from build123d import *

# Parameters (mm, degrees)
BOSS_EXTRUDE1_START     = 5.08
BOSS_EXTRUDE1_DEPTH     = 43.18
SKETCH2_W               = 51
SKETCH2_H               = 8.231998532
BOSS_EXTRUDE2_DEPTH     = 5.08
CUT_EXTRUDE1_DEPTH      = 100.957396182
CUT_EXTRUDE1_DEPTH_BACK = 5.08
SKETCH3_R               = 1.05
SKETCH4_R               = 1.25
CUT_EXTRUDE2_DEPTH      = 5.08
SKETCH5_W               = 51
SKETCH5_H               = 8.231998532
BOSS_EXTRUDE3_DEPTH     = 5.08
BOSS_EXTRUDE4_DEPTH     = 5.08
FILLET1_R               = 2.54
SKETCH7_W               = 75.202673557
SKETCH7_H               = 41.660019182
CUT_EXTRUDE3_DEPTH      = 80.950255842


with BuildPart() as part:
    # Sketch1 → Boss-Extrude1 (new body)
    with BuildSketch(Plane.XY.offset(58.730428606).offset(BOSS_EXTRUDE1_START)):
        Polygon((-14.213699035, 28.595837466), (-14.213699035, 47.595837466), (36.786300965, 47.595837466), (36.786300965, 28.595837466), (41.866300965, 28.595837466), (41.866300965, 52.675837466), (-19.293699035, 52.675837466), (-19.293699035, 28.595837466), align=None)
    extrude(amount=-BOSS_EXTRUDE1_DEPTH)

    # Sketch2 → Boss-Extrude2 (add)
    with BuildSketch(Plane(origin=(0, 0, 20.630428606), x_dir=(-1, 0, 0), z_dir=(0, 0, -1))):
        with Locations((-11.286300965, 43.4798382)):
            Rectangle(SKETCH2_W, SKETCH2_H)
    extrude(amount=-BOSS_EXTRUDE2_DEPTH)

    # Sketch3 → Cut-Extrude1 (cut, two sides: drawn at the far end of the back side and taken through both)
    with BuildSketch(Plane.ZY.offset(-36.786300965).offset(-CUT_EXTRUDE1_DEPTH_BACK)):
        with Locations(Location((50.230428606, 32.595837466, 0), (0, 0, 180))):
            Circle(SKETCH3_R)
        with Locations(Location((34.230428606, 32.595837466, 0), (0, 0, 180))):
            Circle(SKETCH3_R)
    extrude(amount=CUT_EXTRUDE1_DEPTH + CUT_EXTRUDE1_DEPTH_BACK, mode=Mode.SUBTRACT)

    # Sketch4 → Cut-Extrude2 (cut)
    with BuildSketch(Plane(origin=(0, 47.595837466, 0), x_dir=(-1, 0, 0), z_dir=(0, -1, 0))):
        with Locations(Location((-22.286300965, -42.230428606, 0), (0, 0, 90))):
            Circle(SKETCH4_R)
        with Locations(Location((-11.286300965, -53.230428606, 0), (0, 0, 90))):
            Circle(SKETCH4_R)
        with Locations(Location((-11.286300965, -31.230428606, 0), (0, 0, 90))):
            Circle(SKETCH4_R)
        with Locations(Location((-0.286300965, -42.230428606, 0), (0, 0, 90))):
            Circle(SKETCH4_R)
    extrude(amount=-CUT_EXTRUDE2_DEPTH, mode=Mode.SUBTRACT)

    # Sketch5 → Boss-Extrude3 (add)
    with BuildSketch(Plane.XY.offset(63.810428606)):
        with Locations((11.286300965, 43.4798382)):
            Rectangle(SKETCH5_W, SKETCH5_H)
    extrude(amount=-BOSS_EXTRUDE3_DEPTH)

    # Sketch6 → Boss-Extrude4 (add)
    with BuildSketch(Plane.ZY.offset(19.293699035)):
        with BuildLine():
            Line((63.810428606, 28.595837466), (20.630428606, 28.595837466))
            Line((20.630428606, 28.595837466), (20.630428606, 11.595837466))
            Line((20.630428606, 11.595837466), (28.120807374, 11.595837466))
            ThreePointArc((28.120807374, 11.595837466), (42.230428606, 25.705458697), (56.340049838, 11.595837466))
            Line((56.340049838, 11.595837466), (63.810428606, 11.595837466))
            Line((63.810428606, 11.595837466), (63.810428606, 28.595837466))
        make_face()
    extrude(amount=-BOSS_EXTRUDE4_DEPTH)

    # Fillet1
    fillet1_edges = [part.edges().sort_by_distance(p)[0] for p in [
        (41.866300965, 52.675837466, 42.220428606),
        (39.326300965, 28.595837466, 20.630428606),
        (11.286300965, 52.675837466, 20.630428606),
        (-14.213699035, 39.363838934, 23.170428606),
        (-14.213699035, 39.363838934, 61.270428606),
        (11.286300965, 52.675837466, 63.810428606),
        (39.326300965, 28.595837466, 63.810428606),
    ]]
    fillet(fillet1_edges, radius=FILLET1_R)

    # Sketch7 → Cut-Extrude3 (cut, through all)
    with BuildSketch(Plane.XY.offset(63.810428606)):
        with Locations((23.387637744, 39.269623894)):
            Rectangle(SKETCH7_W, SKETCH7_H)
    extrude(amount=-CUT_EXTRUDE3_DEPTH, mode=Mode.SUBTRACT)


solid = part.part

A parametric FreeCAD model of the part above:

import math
import FreeCAD as App
import Part
import Sketcher
Q = App.Units.Quantity


def edges_at(feature, points):
    """Names of the edges that pass closest to the given points."""
    edges = feature.Shape.Edges
    near = lambda p: min(range(len(edges)), key=lambda i: edges[i].distToShape(Part.Vertex(*p))[0])
    return sorted({f"Edge{near(p) + 1}" for p in points})

doc = App.newDocument("Part")
body = doc.addObject("PartDesign::Body", "Body")

sketch1 = body.newObject("Sketcher::SketchObject", "Sketch")
sketch1.AttachmentSupport = (doc.getObject("XY_Plane"), [""])
sketch1.MapMode = "FlatFace"
sketch1.AttachmentOffset = App.Placement(App.Vector(0, 0, 63.810429), App.Rotation())
sketch1.addGeometry([
    Part.LineSegment(App.Vector(-14, 29, 0), App.Vector(-14, 48, 0)),
    Part.LineSegment(App.Vector(-14, 48, 0), App.Vector(37, 48, 0)),
    Part.LineSegment(App.Vector(37, 48, 0), App.Vector(37, 29, 0)),
    Part.LineSegment(App.Vector(37, 29, 0), App.Vector(42, 29, 0)),
    Part.LineSegment(App.Vector(42, 29, 0), App.Vector(42, 53, 0)),
    Part.LineSegment(App.Vector(42, 53, 0), App.Vector(-19, 53, 0)),
    Part.LineSegment(App.Vector(-19, 53, 0), App.Vector(-19, 29, 0)),
    Part.LineSegment(App.Vector(-19, 29, 0), App.Vector(-14, 29, 0)),
], False)
sketch1.addConstraint([
    Sketcher.Constraint("Coincident", 0, 2, 1, 1),
    Sketcher.Constraint("Coincident", 1, 2, 2, 1),
    Sketcher.Constraint("Coincident", 2, 2, 3, 1),
    Sketcher.Constraint("Coincident", 3, 2, 4, 1),
    Sketcher.Constraint("Coincident", 4, 2, 5, 1),
    Sketcher.Constraint("Coincident", 5, 2, 6, 1),
    Sketcher.Constraint("Coincident", 6, 2, 7, 1),
    Sketcher.Constraint("Coincident", 7, 2, 0, 1),
    Sketcher.Constraint("Vertical", 0),
    Sketcher.Constraint("Horizontal", 1),
    Sketcher.Constraint("Vertical", 2),
    Sketcher.Constraint("Horizontal", 3),
    Sketcher.Constraint("Vertical", 4),
    Sketcher.Constraint("Horizontal", 5),
    Sketcher.Constraint("Vertical", 6),
    Sketcher.Constraint("Horizontal", 7),
    Sketcher.Constraint("Horizontal", 3, 2, 6, 2),
    Sketcher.Constraint("Equal", 3, 7),
    Sketcher.Constraint("DistanceX", 1, 1, 1, 2, Q("51 mm")),
    Sketcher.Constraint("DistanceY", 0, 1, 0, 2, Q("19 mm")),
    Sketcher.Constraint("DistanceX", 3, 1, 3, 2, Q("5.08 mm")),
    Sketcher.Constraint("DistanceY", 4, 1, 4, 2, Q("24.08 mm")),
    Sketcher.Constraint("DistanceX", 0, 2, -1, 1, Q("14.213699 mm")),
    Sketcher.Constraint("DistanceY", -1, 1, 0, 2, Q("47.595837 mm")),
])
pad1 = body.newObject("PartDesign::Pad", "Pad")
pad1.Profile = sketch1
pad1.Length = 43.18
pad1.Reversed = True

sketch2 = body.newObject("Sketcher::SketchObject", "Sketch001")
sketch2.AttachmentSupport = (doc.getObject("XY_Plane"), [""])
sketch2.MapMode = "FlatFace"
sketch2.AttachmentOffset = App.Placement(App.Vector(0, 0, 20.630429), App.Rotation())
sketch2.addGeometry([
    Part.LineSegment(App.Vector(37, 48, 0), App.Vector(37, 39, 0)),
    Part.LineSegment(App.Vector(37, 39, 0), App.Vector(-14, 39, 0)),
    Part.LineSegment(App.Vector(-14, 39, 0), App.Vector(-14, 48, 0)),
    Part.LineSegment(App.Vector(-14, 48, 0), App.Vector(37, 48, 0)),
], False)
sketch2.addConstraint([
    Sketcher.Constraint("Coincident", 0, 2, 1, 1),
    Sketcher.Constraint("Coincident", 1, 2, 2, 1),
    Sketcher.Constraint("Coincident", 2, 2, 3, 1),
    Sketcher.Constraint("Coincident", 3, 2, 0, 1),
    Sketcher.Constraint("Vertical", 0),
    Sketcher.Constraint("Horizontal", 1),
    Sketcher.Constraint("Vertical", 2),
    Sketcher.Constraint("Horizontal", 3),
    Sketcher.Constraint("DistanceX", 1, 2, 1, 1, Q("51 mm")),
    Sketcher.Constraint("DistanceY", 0, 2, 0, 1, Q("8.231999 mm")),
    Sketcher.Constraint("DistanceX", -1, 1, 0, 2, Q("36.786301 mm")),
    Sketcher.Constraint("DistanceY", -1, 1, 0, 2, Q("39.363839 mm")),
])
pad2 = body.newObject("PartDesign::Pad", "Pad001")
pad2.Profile = sketch2
pad2.Length = 5.08

sketch3 = body.newObject("Sketcher::SketchObject", "Sketch002")
sketch3.AttachmentSupport = (doc.getObject("YZ_Plane"), [""])
sketch3.MapMode = "FlatFace"
sketch3.AttachmentOffset = App.Placement(App.Vector(0, 0, 36.786301), App.Rotation())
sketch3.addGeometry([
    Part.Circle(App.Vector(32.6, 50.2, 0), App.Vector(0, 0, 1), 1.1),
    Part.Circle(App.Vector(32.6, 34.2, 0), App.Vector(0, 0, 1), 1.1),
], False)
sketch3.addConstraint([
    Sketcher.Constraint("Equal", 0, 1),
    Sketcher.Constraint("Vertical", 0, 3, 1, 3),
    Sketcher.Constraint("Diameter", 0, Q("2.1 mm")),
    Sketcher.Constraint("DistanceY", 1, 3, 0, 3, Q("16 mm")),
    Sketcher.Constraint("DistanceY", -1, 1, 0, 3, Q("50.230429 mm")),
    Sketcher.Constraint("DistanceX", -1, 1, 0, 3, Q("32.595837 mm")),
])
pocket1 = body.newObject("PartDesign::Pocket", "Pocket")
pocket1.Profile = sketch3
pocket1.Type = "ThroughAll"
pocket1.Midplane = True

sketch4 = body.newObject("Sketcher::SketchObject", "Sketch003")
sketch4.AttachmentSupport = (doc.getObject("XZ_Plane"), [""])
sketch4.MapMode = "FlatFace"
sketch4.AttachmentOffset = App.Placement(App.Vector(0, 0, -47.595837), App.Rotation())
sketch4.addGeometry([
    Part.Circle(App.Vector(22.3, 42.2, 0), App.Vector(0, 0, 1), 1.2),
    Part.Circle(App.Vector(11.3, 53.2, 0), App.Vector(0, 0, 1), 1.2),
    Part.Circle(App.Vector(11.3, 31.2, 0), App.Vector(0, 0, 1), 1.2),
    Part.Circle(App.Vector(0.3, 42.2, 0), App.Vector(0, 0, 1), 1.2),
], False)
sketch4.addConstraint([
    Sketcher.Constraint("Equal", 0, 1),
    Sketcher.Constraint("Equal", 1, 2),
    Sketcher.Constraint("Equal", 2, 3),
    Sketcher.Constraint("Horizontal", 0, 3, 3, 3),
    Sketcher.Constraint("Vertical", 1, 3, 2, 3),
    Sketcher.Constraint("Diameter", 0, Q("2.5 mm")),
    Sketcher.Constraint("DistanceX", 1, 3, 0, 3, Q("11 mm")),
    Sketcher.Constraint("DistanceY", 0, 3, 1, 3, Q("11 mm")),
    Sketcher.Constraint("DistanceY", 2, 3, 0, 3, Q("11 mm")),
    Sketcher.Constraint("DistanceX", 3, 3, 2, 3, Q("11 mm")),
    Sketcher.Constraint("DistanceX", -1, 1, 0, 3, Q("22.286301 mm")),
    Sketcher.Constraint("DistanceY", -1, 1, 0, 3, Q("42.230429 mm")),
])
pocket2 = body.newObject("PartDesign::Pocket", "Pocket001")
pocket2.Profile = sketch4
pocket2.Length = 5.08

sketch5 = body.newObject("Sketcher::SketchObject", "Sketch004")
sketch5.AttachmentSupport = (doc.getObject("XY_Plane"), [""])
sketch5.MapMode = "FlatFace"
sketch5.AttachmentOffset = App.Placement(App.Vector(0, 0, 63.810429), App.Rotation())
sketch5.addGeometry([
    Part.LineSegment(App.Vector(-14, 48, 0), App.Vector(-14, 39, 0)),
    Part.LineSegment(App.Vector(-14, 39, 0), App.Vector(37, 39, 0)),
    Part.LineSegment(App.Vector(37, 39, 0), App.Vector(37, 48, 0)),
    Part.LineSegment(App.Vector(37, 48, 0), App.Vector(-14, 48, 0)),
], False)
sketch5.addConstraint([
    Sketcher.Constraint("Coincident", 0, 2, 1, 1),
    Sketcher.Constraint("Coincident", 1, 2, 2, 1),
    Sketcher.Constraint("Coincident", 2, 2, 3, 1),
    Sketcher.Constraint("Coincident", 3, 2, 0, 1),
    Sketcher.Constraint("Vertical", 0),
    Sketcher.Constraint("Horizontal", 1),
    Sketcher.Constraint("Vertical", 2),
    Sketcher.Constraint("Horizontal", 3),
    Sketcher.Constraint("DistanceX", 1, 1, 1, 2, Q("51 mm")),
    Sketcher.Constraint("DistanceY", 0, 2, 0, 1, Q("8.231999 mm")),
    Sketcher.Constraint("DistanceX", 0, 2, -1, 1, Q("14.213699 mm")),
    Sketcher.Constraint("DistanceY", -1, 1, 0, 2, Q("39.363839 mm")),
])
pad3 = body.newObject("PartDesign::Pad", "Pad002")
pad3.Profile = sketch5
pad3.Length = 5.08
pad3.Reversed = True

sketch6 = body.newObject("Sketcher::SketchObject", "Sketch005")
sketch6.AttachmentSupport = (doc.getObject("YZ_Plane"), [""])
sketch6.MapMode = "FlatFace"
sketch6.AttachmentOffset = App.Placement(App.Vector(0, 0, -19.293699), App.Rotation())
sketch6.addGeometry([
    Part.LineSegment(App.Vector(29, 64, 0), App.Vector(29, 21, 0)),
    Part.LineSegment(App.Vector(29, 21, 0), App.Vector(12, 21, 0)),
    Part.LineSegment(App.Vector(12, 21, 0), App.Vector(12, 28, 0)),
    Part.ArcOfCircle(Part.Circle(App.Vector(12, 42, 0), App.Vector(0, 0, 1), 14), math.radians(-90), math.radians(90)),
    Part.LineSegment(App.Vector(12, 56, 0), App.Vector(12, 64, 0)),
    Part.LineSegment(App.Vector(12, 64, 0), App.Vector(29, 64, 0)),
], False)
sketch6.addConstraint([
    Sketcher.Constraint("Coincident", 0, 2, 1, 1),
    Sketcher.Constraint("Coincident", 1, 2, 2, 1),
    Sketcher.Constraint("Coincident", 2, 2, 3, 1),
    Sketcher.Constraint("Coincident", 3, 2, 4, 1),
    Sketcher.Constraint("Coincident", 4, 2, 5, 1),
    Sketcher.Constraint("Coincident", 5, 2, 0, 1),
    Sketcher.Constraint("Vertical", 0),
    Sketcher.Constraint("Horizontal", 1),
    Sketcher.Constraint("Vertical", 2),
    Sketcher.Constraint("Vertical", 4),
    Sketcher.Constraint("Horizontal", 5),
    Sketcher.Constraint("Vertical", 3, 3, 1, 2),
    Sketcher.Constraint("Vertical", 2, 2, 3, 2),
    Sketcher.Constraint("DistanceX", 1, 2, 1, 1, Q("17 mm")),
    Sketcher.Constraint("DistanceY", 0, 2, 0, 1, Q("43.18 mm")),
    Sketcher.Constraint("DistanceY", 0, 2, 3, 3, Q("21.6 mm")),
    Sketcher.Constraint("Radius", 3, Q("14.109621 mm")),
    Sketcher.Constraint("DistanceY", -1, 1, 3, 3, Q("42.230429 mm")),
    Sketcher.Constraint("DistanceX", -1, 1, 3, 3, Q("11.595837 mm")),
])
pad4 = body.newObject("PartDesign::Pad", "Pad003")
pad4.Profile = sketch6
pad4.Length = 5.08
doc.recompute()

fillet = body.newObject("PartDesign::Fillet", "Fillet")
fillet.Base = (pad4, edges_at(pad4, [
    (41.866, 52.676, 42.22),
    (39.326, 28.596, 20.63),
    (11.286, 52.676, 20.63),
    (-14.214, 39.364, 23.17),
    (-14.214, 39.364, 61.27),
    (11.286, 52.676, 63.81),
    (39.326, 28.596, 63.81),
]))
fillet.Radius = 2.54

sketch7 = body.newObject("Sketcher::SketchObject", "Sketch006")
sketch7.AttachmentSupport = (doc.getObject("XY_Plane"), [""])
sketch7.MapMode = "FlatFace"
sketch7.AttachmentOffset = App.Placement(App.Vector(0, 0, 63.810429), App.Rotation())
sketch7.addGeometry([
    Part.LineSegment(App.Vector(-14, 60, 0), App.Vector(-14, 18, 0)),
    Part.LineSegment(App.Vector(-14, 18, 0), App.Vector(61, 18, 0)),
    Part.LineSegment(App.Vector(61, 18, 0), App.Vector(61, 60, 0)),
    Part.LineSegment(App.Vector(61, 60, 0), App.Vector(-14, 60, 0)),
], False)
sketch7.addConstraint([
    Sketcher.Constraint("Coincident", 0, 2, 1, 1),
    Sketcher.Constraint("Coincident", 1, 2, 2, 1),
    Sketcher.Constraint("Coincident", 2, 2, 3, 1),
    Sketcher.Constraint("Coincident", 3, 2, 0, 1),
    Sketcher.Constraint("Vertical", 0),
    Sketcher.Constraint("Horizontal", 1),
    Sketcher.Constraint("Vertical", 2),
    Sketcher.Constraint("Horizontal", 3),
    Sketcher.Constraint("DistanceY", 0, 2, 0, 1, Q("41.660019 mm")),
    Sketcher.Constraint("DistanceX", 0, 2, -1, 1, Q("14.213699 mm")),
    Sketcher.Constraint("DistanceX", 1, 1, 1, 2, Q("75.202674 mm")),
    Sketcher.Constraint("DistanceY", -1, 1, 0, 2, Q("18.439614 mm")),
])
pocket3 = body.newObject("PartDesign::Pocket", "Pocket002")
pocket3.Profile = sketch7
pocket3.Type = "ThroughAll"

doc.recompute()
